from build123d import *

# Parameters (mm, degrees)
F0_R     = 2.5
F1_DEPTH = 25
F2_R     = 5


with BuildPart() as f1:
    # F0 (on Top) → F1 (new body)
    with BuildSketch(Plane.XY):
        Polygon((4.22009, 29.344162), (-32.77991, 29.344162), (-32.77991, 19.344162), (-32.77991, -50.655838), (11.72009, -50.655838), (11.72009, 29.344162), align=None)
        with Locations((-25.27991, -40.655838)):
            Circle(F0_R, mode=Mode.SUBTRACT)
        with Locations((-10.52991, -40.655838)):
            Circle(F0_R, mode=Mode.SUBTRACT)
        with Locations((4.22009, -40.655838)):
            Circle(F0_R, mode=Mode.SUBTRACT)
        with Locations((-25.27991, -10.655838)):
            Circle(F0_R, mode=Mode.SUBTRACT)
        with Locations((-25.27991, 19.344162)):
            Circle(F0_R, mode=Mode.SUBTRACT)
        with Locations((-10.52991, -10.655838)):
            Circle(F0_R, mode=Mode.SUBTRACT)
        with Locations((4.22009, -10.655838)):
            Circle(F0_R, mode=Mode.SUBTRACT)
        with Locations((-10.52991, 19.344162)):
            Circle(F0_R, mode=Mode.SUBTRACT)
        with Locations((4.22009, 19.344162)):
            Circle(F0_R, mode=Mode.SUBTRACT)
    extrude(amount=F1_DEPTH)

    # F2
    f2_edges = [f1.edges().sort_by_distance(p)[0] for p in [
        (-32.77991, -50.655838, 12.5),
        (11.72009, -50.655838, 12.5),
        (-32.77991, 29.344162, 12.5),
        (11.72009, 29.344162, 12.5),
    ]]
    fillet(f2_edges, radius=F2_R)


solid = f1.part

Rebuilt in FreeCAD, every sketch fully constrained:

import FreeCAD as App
import Part
import Sketcher
from FreeCAD import Vector


def edges_at(feature, points):
    """Names of the edges that pass closest to the given points."""
    edges = feature.Shape.Edges
    near = lambda p: min(range(len(edges)), key=lambda i: edges[i].distToShape(Part.Vertex(*p))[0])
    return sorted({f"Edge{near(p) + 1}" for p in points})


def add_polygon(sketch, points):
    """Adds a closed chain of lines whose ends are joined by coincident constraints."""
    first, n = sketch.GeometryCount, len(points)
    for a, b in zip(points, points[1:] + points[:1]):
        sketch.addGeometry(Part.LineSegment(App.Vector(*a, 0), App.Vector(*b, 0)), False)
    for i in range(n):
        sketch.addConstraint(Sketcher.Constraint("Coincident", first + i, 2, first + (i + 1) % n, 1))

doc = App.newDocument("Part")
body = doc.addObject("PartDesign::Body", "Body")

sketch1 = doc.addObject("Sketcher::SketchObject", "Sketch")
body.addObject(sketch1)
sketch1.AttachmentSupport = (doc.XY_Plane, [""])
sketch1.MapMode = "FlatFace"
add_polygon(sketch1, [(-32.77991, 29.344162), (-32.77991, -50.655838), (11.72009, -50.655838), (11.72009, 29.344162)])
sketch1.addGeometry(Part.Circle(Vector(-25.27991, -40.655838, 0), Vector(0, 0, 1), 2.5), False)
sketch1.addGeometry(Part.Circle(Vector(-10.52991, -40.655838, 0), Vector(0, 0, 1), 2.5), False)
sketch1.addGeometry(Part.Circle(Vector(4.22009, -40.655838, 0), Vector(0, 0, 1), 2.5), False)
sketch1.addGeometry(Part.Circle(Vector(-25.27991, -10.655838, 0), Vector(0, 0, 1), 2.5), False)
sketch1.addGeometry(Part.Circle(Vector(-25.27991, 19.344162, 0), Vector(0, 0, 1), 2.5), False)
sketch1.addGeometry(Part.Circle(Vector(-10.52991, -10.655838, 0), Vector(0, 0, 1), 2.5), False)
sketch1.addGeometry(Part.Circle(Vector(4.22009, -10.655838, 0), Vector(0, 0, 1), 2.5), False)
sketch1.addGeometry(Part.Circle(Vector(-10.52991, 19.344162, 0), Vector(0, 0, 1), 2.5), False)
sketch1.addGeometry(Part.Circle(Vector(4.22009, 19.344162, 0), Vector(0, 0, 1), 2.5), False)
sketch1.addConstraint(Sketcher.Constraint("Vertical", 0))
sketch1.addConstraint(Sketcher.Constraint("Horizontal", 1))
sketch1.addConstraint(Sketcher.Constraint("Vertical", 2))
sketch1.addConstraint(Sketcher.Constraint("Horizontal", 3))
sketch1.addConstraint(Sketcher.Constraint("Equal", 4, 5))
sketch1.addConstraint(Sketcher.Constraint("Equal", 5, 6))
sketch1.addConstraint(Sketcher.Constraint("Equal", 6, 7))
sketch1.addConstraint(Sketcher.Constraint("Equal", 7, 8))
sketch1.addConstraint(Sketcher.Constraint("Equal", 8, 9))
sketch1.addConstraint(Sketcher.Constraint("Equal", 9, 10))
sketch1.addConstraint(Sketcher.Constraint("Equal", 10, 11))
sketch1.addConstraint(Sketcher.Constraint("Equal", 11, 12))
sketch1.addConstraint(Sketcher.Constraint("Horizontal", 4, 3, 5, 3))
sketch1.addConstraint(Sketcher.Constraint("Horizontal", 5, 3, 6, 3))
sketch1.addConstraint(Sketcher.Constraint("Horizontal", 7, 3, 9, 3))
sketch1.addConstraint(Sketcher.Constraint("Horizontal", 9, 3, 10, 3))
sketch1.addConstraint(Sketcher.Constraint("Horizontal", 8, 3, 11, 3))
sketch1.addConstraint(Sketcher.Constraint("Horizontal", 11, 3, 12, 3))
sketch1.addConstraint(Sketcher.Constraint("Vertical", 4, 3, 7, 3))
sketch1.addConstraint(Sketcher.Constraint("Vertical", 7, 3, 8, 3))
sketch1.addConstraint(Sketcher.Constraint("Vertical", 5, 3, 9, 3))
sketch1.addConstraint(Sketcher.Constraint("Vertical", 6, 3, 10, 3))
sketch1.addConstraint(Sketcher.Constraint("Vertical", 9, 3, 11, 3))
sketch1.addConstraint(Sketcher.Constraint("Vertical", 10, 3, 12, 3))
sketch1.addConstraint(Sketcher.Constraint("Diameter", 4, 5.0))
sketch1.addConstraint(Sketcher.Constraint("DistanceY", 0, 2, 0, 1, 80.0))
sketch1.addConstraint(Sketcher.Constraint("DistanceX", 1, 1, 1, 2, 44.5))
sketch1.addConstraint(Sketcher.Constraint("DistanceY", 4, 3, 7, 3, 30.0))
sketch1.addConstraint(Sketcher.Constraint("DistanceY", 7, 3, 8, 3, 30.0))
sketch1.addConstraint(Sketcher.Constraint("DistanceY", 0, 2, 4, 3, 10.0))
sketch1.addConstraint(Sketcher.Constraint("DistanceX", 0, 2, 6, 3, 37.0))
sketch1.addConstraint(Sketcher.Constraint("DistanceX", 4, 3, 1, 2, 37.0))
sketch1.addConstraint(Sketcher.Constraint("DistanceX", 4, 3, 5, 3, 14.75))
sketch1.addConstraint(Sketcher.Constraint("DistanceX", 4, 3, -1, 1, 25.27991))
sketch1.addConstraint(Sketcher.Constraint("DistanceY", 4, 3, -1, 1, 40.655838))
pad1 = doc.addObject("PartDesign::Pad", "Pad")
body.addObject(pad1)
pad1.Profile = sketch1
pad1.Length = 25
doc.recompute()

fillet = doc.addObject("PartDesign::Fillet", "Fillet")
body.addObject(fillet)
fillet.Base = (pad1, edges_at(pad1, [
    (-32.78, -50.656, 12.5),
    (11.72, -50.656, 12.5),
    (-32.78, 29.344, 12.5),
    (11.72, 29.344, 12.5),
]))
fillet.Radius = 5

doc.recompute()
